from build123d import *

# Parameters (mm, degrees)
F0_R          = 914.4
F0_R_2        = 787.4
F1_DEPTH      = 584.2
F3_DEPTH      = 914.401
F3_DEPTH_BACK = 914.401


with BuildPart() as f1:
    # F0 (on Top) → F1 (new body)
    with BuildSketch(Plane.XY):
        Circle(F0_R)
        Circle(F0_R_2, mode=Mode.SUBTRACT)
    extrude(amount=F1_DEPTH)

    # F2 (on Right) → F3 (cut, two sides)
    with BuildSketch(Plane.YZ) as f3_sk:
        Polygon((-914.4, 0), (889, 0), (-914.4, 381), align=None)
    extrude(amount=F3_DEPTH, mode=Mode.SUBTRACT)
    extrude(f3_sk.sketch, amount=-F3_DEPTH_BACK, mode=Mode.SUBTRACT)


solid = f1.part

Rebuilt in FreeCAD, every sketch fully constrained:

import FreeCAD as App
import Part
import Sketcher

V = App.Vector
Q = App.Units.Quantity


def add_polygon(sketch, points):
    """Adds a closed chain of lines whose ends are joined by coincident constraints."""
    first, n = sketch.GeometryCount, len(points)
    for a, b in zip(points, points[1:] + points[:1]):
        sketch.addGeometry(Part.LineSegment(App.Vector(*a, 0), App.Vector(*b, 0)), False)
    for i in range(n):
        sketch.addConstraint(Sketcher.Constraint("Coincident", first + i, 2, first + (i + 1) % n, 1))

doc = App.newDocument("Part")
body = doc.addObject("PartDesign::Body", "Body")

sketch1 = body.newObject("Sketcher::SketchObject", "Sketch")
sketch1.AttachmentSupport = (doc.getObject("XY_Plane"), [""])
sketch1.MapMode = "FlatFace"
sketch1.addGeometry([
    Part.Circle(V(0, 0, 0), V(0, 0, 1), 914),
    Part.Circle(V(0, 0, 0), V(0, 0, 1), 787),
], False)
sketch1.addConstraint([
    Sketcher.Constraint("Coincident", 0, 3, -1, 1),
    Sketcher.Constraint("Coincident", 1, 3, -1, 1),
    Sketcher.Constraint("Diameter", 0, Q("72 in")),
    Sketcher.Constraint("Diameter", 1, Q("62 in")),
])
pad1 = body.newObject("PartDesign::Pad", "Pad")
pad1.Profile = sketch1
pad1.Length = Q("23 in")

sketch2 = body.newObject("Sketcher::SketchObject", "Sketch001")
sketch2.AttachmentSupport = (doc.getObject("YZ_Plane"), [""])
sketch2.MapMode = "FlatFace"
add_polygon(sketch2, [(-914, 0), (889, 0), (-914, 381)])
sketch2.addConstraint([
    Sketcher.Constraint("Horizontal", 0),
    Sketcher.Constraint("Vertical", 2),
    Sketcher.Constraint("PointOnObject", 0, 2, -1),
    Sketcher.Constraint("DistanceX", 0, 1, 0, 2, Q("71 in")),
    Sketcher.Constraint("DistanceY", 2, 2, 2, 1, Q("15 in")),
    Sketcher.Constraint("DistanceX", -1, 1, 0, 2, Q("35 in")),
])
pocket1 = body.newObject("PartDesign::Pocket", "Pocket")
pocket1.Profile = sketch2
pocket1.Type = "ThroughAll"
pocket1.Midplane = True

doc.recompute()
